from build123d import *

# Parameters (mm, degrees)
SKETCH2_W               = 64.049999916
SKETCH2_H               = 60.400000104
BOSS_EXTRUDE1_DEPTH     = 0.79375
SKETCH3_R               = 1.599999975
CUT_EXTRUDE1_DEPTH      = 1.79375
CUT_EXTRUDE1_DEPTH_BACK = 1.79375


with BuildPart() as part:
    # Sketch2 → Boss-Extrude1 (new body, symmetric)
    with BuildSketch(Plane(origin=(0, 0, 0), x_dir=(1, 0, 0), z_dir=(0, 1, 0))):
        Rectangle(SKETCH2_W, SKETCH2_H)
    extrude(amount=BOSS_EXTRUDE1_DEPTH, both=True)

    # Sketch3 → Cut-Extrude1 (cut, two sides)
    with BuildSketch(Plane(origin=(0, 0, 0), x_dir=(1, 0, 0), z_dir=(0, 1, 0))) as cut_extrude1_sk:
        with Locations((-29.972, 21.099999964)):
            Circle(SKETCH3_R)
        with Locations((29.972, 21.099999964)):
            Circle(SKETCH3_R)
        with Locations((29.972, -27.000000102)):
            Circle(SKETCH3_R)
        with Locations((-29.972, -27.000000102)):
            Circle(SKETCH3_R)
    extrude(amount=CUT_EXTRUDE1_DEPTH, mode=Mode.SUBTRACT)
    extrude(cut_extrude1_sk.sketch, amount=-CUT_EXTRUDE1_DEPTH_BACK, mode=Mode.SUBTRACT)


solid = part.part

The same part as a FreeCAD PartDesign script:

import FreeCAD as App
import Part
import Sketcher
from FreeCAD import Vector

doc = App.newDocument("Part")
body = doc.addObject("PartDesign::Body", "Body")

# Sketch on XZ plane
sketch1 = body.newObject("Sketcher::SketchObject", "Sketch")
sketch1.AttachmentSupport = (doc.getObject("XZ_Plane"), [""])
sketch1.MapMode = "FlatFace"
sketch1.addGeometry([
    Part.LineSegment(Vector(-32.025, -30.2, 0), Vector(-32.025, 30.2, 0)),
    Part.LineSegment(Vector(-32.025, 30.2, 0), Vector(32.025, 30.2, 0)),
    Part.LineSegment(Vector(32.025, 30.2, 0), Vector(32.025, -30.2, 0)),
    Part.LineSegment(Vector(32.025, -30.2, 0), Vector(-32.025, -30.2, 0)),
], False)
sketch1.addConstraint([
    Sketcher.Constraint("Coincident", 0, 2, 1, 1),
    Sketcher.Constraint("Coincident", 1, 2, 2, 1),
    Sketcher.Constraint("Coincident", 2, 2, 3, 1),
    Sketcher.Constraint("Coincident", 3, 2, 0, 1),
    Sketcher.Constraint("Vertical", 0),
    Sketcher.Constraint("Horizontal", 1),
    Sketcher.Constraint("Vertical", 2),
    Sketcher.Constraint("Horizontal", 3),
    Sketcher.Constraint("Symmetric", 0, 2, 2, 2, -1, 1),
    Sketcher.Constraint("DistanceY", 0, 1, 0, 2, 60.4),
    Sketcher.Constraint("DistanceX", 1, 1, 1, 2, 64.05),
])
pad1 = body.newObject("PartDesign::Pad", "Pad")
pad1.Profile = sketch1
pad1.Length = 1.5875
pad1.Midplane = True

# Sketch on XZ plane
sketch2 = body.newObject("Sketcher::SketchObject", "Sketch001")
sketch2.AttachmentSupport = (doc.getObject("XZ_Plane"), [""])
sketch2.MapMode = "FlatFace"
sketch2.addGeometry([
    Part.Circle(Vector(-29.972, -21.1, 0), Vector(0, 0, 1), 1.6),
    Part.Circle(Vector(29.972, -21.1, 0), Vector(0, 0, 1), 1.6),
    Part.Circle(Vector(29.972, 27, 0), Vector(0, 0, 1), 1.6),
    Part.Circle(Vector(-29.972, 27, 0), Vector(0, 0, 1), 1.6),
], False)
sketch2.addConstraint([
    Sketcher.Constraint("Equal", 0, 1),
    Sketcher.Constraint("Equal", 1, 2),
    Sketcher.Constraint("Equal", 2, 3),
    Sketcher.Constraint("Symmetric", 0, 3, 1, 3, -2),
    Sketcher.Constraint("Symmetric", 2, 3, 3, 3, -2),
    Sketcher.Constraint("Vertical", 1, 3, 2, 3),
    Sketcher.Constraint("Diameter", 0, 3.2),
    Sketcher.Constraint("DistanceY", -1, 1, 2, 3, 27.0),
    Sketcher.Constraint("DistanceY", 0, 3, -1, 1, 21.1),
    Sketcher.Constraint("DistanceX", 0, 3, -1, 1, 29.972),
])
pocket1 = body.newObject("PartDesign::Pocket", "Pocket")
pocket1.Profile = sketch2
pocket1.Type = "ThroughAll"
pocket1.Midplane = True

doc.recompute()
